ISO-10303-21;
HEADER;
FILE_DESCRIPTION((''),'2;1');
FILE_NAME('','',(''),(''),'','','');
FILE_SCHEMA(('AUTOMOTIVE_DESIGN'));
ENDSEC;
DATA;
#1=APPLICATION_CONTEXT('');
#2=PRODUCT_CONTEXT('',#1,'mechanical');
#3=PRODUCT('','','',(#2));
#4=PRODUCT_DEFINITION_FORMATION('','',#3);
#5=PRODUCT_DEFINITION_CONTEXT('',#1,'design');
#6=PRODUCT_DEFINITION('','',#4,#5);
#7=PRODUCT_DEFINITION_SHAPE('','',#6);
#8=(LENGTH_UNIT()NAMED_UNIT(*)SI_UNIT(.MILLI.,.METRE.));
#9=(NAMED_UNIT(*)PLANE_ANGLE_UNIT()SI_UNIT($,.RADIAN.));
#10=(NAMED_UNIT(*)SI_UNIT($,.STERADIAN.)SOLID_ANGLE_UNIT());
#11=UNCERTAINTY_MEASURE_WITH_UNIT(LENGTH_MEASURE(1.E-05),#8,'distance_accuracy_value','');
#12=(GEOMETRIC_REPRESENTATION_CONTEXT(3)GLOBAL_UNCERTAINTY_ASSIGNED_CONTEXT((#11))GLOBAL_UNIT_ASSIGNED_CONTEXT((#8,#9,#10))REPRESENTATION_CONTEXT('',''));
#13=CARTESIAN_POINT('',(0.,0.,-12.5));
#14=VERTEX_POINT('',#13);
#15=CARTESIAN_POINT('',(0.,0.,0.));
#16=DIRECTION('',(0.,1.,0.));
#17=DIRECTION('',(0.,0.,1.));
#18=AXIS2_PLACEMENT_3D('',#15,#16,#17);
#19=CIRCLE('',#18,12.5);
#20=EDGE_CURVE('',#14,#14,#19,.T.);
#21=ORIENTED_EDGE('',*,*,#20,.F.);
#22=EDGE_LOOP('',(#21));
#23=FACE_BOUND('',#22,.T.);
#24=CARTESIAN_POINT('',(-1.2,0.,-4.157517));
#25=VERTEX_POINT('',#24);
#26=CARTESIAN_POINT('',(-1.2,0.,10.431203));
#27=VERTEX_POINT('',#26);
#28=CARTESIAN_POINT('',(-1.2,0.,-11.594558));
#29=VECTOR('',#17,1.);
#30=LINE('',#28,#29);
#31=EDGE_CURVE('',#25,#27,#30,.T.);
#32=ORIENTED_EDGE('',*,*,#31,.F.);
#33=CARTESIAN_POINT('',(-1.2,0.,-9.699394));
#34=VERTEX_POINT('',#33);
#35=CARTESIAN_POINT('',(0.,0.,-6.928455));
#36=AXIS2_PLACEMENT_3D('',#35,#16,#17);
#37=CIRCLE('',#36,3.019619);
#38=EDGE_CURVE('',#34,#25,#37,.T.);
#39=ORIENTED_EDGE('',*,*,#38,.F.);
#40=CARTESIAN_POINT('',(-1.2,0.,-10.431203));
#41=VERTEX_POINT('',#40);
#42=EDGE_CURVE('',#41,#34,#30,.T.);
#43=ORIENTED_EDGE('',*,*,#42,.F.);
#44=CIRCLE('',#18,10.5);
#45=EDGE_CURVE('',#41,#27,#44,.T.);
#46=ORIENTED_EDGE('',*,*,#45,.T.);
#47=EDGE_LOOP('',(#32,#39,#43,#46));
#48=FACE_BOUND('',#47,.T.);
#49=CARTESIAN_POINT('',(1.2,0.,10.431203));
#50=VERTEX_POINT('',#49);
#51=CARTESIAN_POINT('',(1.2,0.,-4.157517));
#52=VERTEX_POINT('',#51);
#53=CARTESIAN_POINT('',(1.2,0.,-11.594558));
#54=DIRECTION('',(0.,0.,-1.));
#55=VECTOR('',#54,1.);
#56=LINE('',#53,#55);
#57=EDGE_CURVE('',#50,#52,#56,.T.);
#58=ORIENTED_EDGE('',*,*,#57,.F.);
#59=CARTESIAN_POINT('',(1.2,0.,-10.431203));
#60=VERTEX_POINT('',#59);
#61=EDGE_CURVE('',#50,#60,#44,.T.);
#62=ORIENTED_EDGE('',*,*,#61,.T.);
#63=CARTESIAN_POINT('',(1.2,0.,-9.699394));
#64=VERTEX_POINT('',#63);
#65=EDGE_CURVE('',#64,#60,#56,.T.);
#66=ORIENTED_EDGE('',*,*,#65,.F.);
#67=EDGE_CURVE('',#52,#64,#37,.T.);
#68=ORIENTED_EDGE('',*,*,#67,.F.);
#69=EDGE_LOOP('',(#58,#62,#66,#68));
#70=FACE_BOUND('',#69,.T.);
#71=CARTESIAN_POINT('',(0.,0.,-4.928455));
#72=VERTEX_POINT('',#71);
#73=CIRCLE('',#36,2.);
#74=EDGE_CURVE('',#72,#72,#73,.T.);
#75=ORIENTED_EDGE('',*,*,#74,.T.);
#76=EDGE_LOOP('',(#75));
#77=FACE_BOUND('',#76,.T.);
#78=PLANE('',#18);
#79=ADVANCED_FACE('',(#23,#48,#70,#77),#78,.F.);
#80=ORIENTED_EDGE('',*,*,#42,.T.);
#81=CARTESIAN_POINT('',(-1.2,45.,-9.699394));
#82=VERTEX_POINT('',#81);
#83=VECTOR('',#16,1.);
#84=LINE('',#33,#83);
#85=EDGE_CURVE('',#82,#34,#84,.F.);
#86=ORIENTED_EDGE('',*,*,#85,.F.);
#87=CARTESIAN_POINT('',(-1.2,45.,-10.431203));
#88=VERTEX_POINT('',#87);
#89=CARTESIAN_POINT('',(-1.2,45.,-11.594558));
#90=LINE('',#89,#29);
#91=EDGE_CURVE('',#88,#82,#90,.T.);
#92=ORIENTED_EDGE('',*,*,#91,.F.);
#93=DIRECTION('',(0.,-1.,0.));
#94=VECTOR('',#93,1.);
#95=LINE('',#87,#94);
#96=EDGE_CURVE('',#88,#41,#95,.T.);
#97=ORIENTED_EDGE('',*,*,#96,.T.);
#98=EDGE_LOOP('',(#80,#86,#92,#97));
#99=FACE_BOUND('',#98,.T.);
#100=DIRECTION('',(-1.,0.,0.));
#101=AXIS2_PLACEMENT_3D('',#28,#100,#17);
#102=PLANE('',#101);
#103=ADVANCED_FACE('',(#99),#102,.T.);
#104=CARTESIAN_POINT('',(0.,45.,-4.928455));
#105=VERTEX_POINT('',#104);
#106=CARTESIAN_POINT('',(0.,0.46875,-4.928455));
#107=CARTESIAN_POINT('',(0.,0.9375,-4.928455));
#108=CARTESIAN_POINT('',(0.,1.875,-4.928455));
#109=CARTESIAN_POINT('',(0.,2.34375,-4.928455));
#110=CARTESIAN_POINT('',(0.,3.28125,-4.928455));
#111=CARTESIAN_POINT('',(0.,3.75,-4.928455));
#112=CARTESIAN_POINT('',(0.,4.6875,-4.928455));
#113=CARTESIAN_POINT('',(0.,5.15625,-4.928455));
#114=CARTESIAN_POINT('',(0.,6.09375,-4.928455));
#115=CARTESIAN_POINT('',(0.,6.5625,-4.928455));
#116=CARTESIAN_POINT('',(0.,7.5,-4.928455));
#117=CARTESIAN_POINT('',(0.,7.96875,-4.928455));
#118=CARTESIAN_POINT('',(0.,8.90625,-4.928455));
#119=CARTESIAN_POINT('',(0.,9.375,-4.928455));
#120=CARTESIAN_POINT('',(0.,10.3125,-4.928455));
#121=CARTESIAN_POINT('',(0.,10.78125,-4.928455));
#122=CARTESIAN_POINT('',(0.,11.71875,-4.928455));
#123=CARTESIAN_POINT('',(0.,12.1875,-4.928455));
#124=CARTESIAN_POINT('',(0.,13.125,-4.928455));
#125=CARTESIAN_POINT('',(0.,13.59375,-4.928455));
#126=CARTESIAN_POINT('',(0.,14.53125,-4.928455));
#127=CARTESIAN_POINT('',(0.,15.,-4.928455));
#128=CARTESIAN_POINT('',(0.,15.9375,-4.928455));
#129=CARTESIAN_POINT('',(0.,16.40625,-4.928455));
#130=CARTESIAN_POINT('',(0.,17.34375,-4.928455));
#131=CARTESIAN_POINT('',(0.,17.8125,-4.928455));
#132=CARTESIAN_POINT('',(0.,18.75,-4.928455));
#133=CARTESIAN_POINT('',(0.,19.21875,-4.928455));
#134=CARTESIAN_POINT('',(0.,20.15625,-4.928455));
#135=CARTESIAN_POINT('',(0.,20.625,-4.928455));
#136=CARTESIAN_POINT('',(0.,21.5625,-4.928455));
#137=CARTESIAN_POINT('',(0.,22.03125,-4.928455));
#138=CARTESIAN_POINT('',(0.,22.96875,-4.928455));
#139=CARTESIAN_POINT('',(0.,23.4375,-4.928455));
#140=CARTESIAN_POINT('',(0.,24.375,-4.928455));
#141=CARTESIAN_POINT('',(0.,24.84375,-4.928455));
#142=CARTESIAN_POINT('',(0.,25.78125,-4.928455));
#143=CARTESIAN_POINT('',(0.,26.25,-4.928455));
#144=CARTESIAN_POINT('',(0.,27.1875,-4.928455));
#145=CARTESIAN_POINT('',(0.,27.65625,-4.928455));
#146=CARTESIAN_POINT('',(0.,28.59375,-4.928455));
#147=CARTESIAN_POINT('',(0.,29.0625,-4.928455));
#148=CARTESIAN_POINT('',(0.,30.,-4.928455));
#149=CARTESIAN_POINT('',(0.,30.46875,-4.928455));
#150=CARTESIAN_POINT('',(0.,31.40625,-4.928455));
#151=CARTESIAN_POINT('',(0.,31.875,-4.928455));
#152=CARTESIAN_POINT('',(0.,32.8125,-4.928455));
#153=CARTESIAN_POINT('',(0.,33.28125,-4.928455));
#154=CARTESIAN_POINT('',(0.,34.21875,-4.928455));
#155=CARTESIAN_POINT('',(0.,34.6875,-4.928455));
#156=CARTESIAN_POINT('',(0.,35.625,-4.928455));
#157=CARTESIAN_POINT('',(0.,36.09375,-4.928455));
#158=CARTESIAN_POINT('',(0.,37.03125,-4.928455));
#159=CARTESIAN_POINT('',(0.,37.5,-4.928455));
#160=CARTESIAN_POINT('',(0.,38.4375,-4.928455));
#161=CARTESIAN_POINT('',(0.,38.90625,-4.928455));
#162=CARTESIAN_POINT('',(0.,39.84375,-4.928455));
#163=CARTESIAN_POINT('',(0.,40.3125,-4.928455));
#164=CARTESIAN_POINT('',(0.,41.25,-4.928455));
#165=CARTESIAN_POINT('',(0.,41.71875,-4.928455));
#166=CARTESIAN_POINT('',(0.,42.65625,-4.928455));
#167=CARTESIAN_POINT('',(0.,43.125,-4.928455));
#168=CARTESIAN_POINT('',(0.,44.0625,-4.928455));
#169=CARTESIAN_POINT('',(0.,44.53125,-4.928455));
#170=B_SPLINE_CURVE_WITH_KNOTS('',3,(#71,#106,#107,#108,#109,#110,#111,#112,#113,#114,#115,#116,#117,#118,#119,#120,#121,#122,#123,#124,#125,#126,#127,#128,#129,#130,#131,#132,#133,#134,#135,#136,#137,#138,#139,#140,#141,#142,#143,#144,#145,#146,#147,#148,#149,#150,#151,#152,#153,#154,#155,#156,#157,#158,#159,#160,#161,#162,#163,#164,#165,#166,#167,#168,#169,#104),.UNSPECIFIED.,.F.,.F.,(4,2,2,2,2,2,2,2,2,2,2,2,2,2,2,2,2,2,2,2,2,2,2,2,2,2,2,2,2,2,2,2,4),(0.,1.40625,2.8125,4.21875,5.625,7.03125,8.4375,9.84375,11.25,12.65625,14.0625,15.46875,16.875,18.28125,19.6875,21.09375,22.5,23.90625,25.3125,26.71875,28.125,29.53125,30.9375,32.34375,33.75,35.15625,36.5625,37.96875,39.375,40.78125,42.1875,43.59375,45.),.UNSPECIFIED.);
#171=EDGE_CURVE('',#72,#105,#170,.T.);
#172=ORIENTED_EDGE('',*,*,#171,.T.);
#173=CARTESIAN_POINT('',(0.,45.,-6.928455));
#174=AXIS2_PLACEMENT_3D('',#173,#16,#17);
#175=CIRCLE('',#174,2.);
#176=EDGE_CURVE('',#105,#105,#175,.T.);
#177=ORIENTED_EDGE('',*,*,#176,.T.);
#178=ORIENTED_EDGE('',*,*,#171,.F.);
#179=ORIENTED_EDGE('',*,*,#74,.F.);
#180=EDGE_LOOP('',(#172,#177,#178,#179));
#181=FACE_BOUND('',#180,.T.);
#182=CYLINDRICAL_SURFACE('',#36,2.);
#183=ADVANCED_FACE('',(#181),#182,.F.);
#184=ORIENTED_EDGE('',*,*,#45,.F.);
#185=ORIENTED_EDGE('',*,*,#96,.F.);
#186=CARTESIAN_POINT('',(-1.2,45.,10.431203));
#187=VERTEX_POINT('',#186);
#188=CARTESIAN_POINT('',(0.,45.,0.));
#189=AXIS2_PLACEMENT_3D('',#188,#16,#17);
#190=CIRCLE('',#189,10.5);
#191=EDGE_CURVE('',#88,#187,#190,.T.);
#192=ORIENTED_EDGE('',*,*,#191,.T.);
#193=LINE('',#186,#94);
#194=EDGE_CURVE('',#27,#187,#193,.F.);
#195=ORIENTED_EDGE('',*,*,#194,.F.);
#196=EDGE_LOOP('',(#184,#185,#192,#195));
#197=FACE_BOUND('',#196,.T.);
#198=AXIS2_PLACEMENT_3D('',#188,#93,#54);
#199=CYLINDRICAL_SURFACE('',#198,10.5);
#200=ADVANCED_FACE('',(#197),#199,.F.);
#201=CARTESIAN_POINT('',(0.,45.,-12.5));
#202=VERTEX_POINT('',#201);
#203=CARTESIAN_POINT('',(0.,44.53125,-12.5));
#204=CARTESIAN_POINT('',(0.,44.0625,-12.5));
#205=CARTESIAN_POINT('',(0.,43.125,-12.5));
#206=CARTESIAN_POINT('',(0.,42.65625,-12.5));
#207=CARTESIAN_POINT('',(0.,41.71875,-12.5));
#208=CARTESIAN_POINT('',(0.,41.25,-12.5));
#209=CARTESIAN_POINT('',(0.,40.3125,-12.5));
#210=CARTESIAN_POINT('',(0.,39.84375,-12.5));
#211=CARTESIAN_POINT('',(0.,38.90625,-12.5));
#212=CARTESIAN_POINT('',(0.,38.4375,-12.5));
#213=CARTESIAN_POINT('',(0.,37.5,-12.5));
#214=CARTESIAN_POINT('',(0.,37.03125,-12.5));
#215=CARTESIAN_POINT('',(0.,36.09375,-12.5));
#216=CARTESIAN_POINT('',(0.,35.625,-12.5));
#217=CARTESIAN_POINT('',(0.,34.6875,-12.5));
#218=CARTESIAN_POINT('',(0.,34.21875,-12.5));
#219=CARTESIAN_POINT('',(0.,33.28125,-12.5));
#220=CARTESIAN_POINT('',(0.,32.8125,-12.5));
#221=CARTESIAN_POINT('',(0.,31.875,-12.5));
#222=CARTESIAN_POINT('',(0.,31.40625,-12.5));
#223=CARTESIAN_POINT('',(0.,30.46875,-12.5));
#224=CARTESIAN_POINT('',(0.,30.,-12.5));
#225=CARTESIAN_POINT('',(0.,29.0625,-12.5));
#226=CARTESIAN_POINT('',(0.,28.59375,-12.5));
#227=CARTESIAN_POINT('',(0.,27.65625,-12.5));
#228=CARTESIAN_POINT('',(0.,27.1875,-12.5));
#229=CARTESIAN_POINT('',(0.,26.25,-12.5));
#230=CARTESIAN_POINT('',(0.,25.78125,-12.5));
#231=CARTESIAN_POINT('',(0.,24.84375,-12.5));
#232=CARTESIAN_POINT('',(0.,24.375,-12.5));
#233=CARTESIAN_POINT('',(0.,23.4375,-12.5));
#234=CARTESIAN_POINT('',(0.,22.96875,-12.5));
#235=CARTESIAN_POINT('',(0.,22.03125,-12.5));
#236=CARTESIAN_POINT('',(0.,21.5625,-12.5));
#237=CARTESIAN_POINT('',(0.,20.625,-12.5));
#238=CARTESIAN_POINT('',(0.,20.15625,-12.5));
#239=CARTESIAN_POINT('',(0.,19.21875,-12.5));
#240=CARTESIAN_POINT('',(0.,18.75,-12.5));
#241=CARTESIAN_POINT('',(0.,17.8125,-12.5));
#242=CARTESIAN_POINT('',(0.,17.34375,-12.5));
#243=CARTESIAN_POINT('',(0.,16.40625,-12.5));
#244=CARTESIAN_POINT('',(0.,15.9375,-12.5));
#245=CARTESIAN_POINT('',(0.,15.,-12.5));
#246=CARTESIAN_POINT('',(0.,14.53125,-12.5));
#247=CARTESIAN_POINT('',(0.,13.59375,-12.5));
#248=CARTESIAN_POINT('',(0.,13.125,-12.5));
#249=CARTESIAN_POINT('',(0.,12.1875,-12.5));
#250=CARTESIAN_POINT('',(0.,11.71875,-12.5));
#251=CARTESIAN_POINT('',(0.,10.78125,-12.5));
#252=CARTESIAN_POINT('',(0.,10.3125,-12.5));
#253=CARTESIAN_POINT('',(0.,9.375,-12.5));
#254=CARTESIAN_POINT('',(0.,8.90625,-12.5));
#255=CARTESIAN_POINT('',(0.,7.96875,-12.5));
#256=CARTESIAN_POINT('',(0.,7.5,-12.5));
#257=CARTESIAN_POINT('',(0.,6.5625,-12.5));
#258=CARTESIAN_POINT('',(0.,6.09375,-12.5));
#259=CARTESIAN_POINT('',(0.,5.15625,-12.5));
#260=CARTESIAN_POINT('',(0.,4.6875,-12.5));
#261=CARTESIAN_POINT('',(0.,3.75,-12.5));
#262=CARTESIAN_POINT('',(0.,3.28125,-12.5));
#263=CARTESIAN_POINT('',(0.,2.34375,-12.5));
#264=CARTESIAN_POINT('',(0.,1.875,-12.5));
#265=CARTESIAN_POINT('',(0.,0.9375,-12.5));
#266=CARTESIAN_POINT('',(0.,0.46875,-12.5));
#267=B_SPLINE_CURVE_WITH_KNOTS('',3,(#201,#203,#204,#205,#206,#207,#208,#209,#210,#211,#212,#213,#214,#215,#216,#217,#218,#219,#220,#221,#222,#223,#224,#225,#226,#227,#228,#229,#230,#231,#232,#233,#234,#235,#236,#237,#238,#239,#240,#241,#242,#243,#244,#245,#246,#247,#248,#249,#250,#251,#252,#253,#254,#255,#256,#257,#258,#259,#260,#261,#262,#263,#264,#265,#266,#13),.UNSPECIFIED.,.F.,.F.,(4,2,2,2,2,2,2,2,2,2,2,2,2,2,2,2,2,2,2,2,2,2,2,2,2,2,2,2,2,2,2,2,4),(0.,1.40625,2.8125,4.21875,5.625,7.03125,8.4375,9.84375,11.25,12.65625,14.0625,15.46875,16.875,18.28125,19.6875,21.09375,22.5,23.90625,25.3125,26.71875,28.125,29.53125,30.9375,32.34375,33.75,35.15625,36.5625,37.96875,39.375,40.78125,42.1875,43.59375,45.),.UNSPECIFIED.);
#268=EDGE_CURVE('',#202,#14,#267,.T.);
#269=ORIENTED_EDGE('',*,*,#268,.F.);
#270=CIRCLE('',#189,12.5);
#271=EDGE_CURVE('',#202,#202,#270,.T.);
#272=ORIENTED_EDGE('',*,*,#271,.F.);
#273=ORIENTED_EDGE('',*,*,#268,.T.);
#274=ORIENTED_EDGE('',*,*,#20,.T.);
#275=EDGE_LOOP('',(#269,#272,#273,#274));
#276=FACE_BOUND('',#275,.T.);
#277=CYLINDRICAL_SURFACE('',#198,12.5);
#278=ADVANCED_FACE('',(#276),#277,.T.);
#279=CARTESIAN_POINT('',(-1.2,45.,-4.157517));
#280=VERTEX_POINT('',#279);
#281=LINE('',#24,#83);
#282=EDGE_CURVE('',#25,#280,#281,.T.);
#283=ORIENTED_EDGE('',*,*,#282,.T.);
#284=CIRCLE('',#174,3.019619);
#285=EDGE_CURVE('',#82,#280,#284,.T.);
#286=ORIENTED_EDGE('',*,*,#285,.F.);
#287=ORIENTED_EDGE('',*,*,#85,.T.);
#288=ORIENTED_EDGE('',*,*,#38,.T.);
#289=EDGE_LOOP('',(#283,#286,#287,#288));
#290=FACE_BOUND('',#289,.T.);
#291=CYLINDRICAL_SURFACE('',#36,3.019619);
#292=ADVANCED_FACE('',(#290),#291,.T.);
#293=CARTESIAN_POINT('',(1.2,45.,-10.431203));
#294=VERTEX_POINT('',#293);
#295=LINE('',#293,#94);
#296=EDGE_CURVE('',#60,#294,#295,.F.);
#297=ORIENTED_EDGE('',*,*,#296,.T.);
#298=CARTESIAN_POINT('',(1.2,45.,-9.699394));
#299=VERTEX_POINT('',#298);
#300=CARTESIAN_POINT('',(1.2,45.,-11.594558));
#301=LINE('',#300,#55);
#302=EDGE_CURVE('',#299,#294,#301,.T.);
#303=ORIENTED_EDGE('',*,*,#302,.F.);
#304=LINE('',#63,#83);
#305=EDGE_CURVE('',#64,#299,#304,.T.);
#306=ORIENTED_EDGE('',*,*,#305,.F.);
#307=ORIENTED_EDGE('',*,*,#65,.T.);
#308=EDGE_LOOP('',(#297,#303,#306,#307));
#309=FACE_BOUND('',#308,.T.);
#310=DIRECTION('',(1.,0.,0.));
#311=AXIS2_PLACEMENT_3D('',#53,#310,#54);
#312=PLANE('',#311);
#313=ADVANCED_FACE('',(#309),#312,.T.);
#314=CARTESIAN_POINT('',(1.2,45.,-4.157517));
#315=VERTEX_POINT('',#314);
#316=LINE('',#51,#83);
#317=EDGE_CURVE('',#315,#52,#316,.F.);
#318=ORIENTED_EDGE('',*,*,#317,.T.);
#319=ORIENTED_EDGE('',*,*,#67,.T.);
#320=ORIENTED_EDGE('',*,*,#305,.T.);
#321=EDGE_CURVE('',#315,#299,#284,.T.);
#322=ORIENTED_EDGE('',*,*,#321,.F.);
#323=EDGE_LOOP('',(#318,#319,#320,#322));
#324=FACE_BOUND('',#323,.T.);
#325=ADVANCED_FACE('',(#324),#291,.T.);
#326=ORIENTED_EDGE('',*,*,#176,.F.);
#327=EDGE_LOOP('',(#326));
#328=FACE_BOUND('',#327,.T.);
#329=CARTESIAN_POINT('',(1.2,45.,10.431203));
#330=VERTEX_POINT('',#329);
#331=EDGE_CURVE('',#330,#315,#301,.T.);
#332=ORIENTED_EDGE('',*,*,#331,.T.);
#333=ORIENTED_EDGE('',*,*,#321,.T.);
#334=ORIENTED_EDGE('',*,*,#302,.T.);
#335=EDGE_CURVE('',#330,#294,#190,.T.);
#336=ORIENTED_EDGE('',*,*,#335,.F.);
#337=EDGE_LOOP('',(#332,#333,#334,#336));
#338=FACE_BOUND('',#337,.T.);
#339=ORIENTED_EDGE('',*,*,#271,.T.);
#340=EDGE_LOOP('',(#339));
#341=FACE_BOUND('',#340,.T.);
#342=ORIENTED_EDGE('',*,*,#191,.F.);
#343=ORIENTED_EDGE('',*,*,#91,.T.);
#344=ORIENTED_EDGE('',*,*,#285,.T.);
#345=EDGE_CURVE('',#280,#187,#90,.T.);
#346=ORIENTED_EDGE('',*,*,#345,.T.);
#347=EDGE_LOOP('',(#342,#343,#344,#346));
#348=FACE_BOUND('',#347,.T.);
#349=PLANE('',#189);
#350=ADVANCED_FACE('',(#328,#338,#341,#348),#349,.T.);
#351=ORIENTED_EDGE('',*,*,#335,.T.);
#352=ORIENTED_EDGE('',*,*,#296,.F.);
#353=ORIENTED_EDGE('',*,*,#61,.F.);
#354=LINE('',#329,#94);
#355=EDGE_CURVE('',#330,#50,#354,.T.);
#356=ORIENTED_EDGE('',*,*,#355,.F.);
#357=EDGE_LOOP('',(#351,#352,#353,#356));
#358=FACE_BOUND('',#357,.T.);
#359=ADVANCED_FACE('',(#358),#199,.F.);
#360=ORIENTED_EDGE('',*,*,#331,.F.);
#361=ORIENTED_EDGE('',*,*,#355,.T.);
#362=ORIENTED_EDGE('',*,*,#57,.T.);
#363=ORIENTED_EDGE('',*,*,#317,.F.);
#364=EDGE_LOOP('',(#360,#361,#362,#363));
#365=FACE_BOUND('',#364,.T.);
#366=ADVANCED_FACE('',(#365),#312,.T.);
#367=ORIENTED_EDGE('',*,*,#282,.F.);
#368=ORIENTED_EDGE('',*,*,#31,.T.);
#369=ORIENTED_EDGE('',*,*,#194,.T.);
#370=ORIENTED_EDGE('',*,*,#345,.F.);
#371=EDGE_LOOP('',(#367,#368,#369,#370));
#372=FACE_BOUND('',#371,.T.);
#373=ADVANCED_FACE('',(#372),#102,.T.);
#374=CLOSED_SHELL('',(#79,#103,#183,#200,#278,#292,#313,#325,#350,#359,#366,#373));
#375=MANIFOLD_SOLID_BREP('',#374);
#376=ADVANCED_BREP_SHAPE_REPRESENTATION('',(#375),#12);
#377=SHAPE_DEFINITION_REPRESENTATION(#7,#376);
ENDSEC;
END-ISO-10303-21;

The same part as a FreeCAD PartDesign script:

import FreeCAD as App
import Part
import Sketcher

doc = App.newDocument("Part")
params = doc.addObject("Spreadsheet::Sheet", "Params")
for row, (alias, value) in enumerate([
    ("sketch1_diameter", "25 mm"),
    ("sketch1_diameter2", "21 mm"),
    ("pad1_length", "45 mm"),
    ("sketch2_width", "2.4 mm"),
    ("pad2_length", "45 mm"),
    ("sketch4_diameter", "4 mm"),
], start=1):
    params.set(f"A{row}", alias)
    params.set(f"B{row}", "=" + value)
    params.setAlias(f"B{row}", alias)

body = doc.addObject("PartDesign::Body", "Body")

sketch1 = doc.addObject("Sketcher::SketchObject", "Sketch")
body.addObject(sketch1)
sketch1.AttachmentSupport = (doc.XZ_Plane, [""])
sketch1.MapMode = "FlatFace"
sketch1.addGeometry(Part.Circle(App.Vector(0, 0, 0), App.Vector(0, 0, 1), 12.5), False)
sketch1.addGeometry(Part.Circle(App.Vector(0, 0, 0), App.Vector(0, 0, 1), 10.5), False)
sketch1.addConstraint(Sketcher.Constraint("Coincident", 0, 3, -1, 1))
sketch1.addConstraint(Sketcher.Constraint("Coincident", 1, 3, -1, 1))
sketch1.addConstraint(Sketcher.Constraint("Diameter", 0, 25.0))
sketch1.addConstraint(Sketcher.Constraint("Diameter", 1, 21.0))
sketch1.setExpression("Constraints[2]", "Params.sketch1_diameter")
sketch1.setExpression("Constraints[3]", "Params.sketch1_diameter2")
pad1 = doc.addObject("PartDesign::Pad", "Pad")
body.addObject(pad1)
pad1.Profile = sketch1
pad1.setExpression("Length", "Params.pad1_length")
pad1.Reversed = True

sketch2 = doc.addObject("Sketcher::SketchObject", "Sketch001")
body.addObject(sketch2)
sketch2.AttachmentSupport = (doc.XZ_Plane, [""])
sketch2.MapMode = "FlatFace"
sketch2.AttachmentOffset = App.Placement(App.Vector(0, 0, -45), App.Rotation())
sketch2.addGeometry(Part.LineSegment(App.Vector(-1.2, -11.594558, 0), App.Vector(-1.2, 11.406029, 0)), False)
sketch2.addGeometry(Part.LineSegment(App.Vector(-1.2, 11.406029, 0), App.Vector(1.2, 11.406029, 0)), False)
sketch2.addGeometry(Part.LineSegment(App.Vector(1.2, 11.406029, 0), App.Vector(1.2, -11.594558, 0)), False)
sketch2.addGeometry(Part.LineSegment(App.Vector(1.2, -11.594558, 0), App.Vector(-1.2, -11.594558, 0)), False)
sketch2.addConstraint(Sketcher.Constraint("Coincident", 0, 2, 1, 1))
sketch2.addConstraint(Sketcher.Constraint("Coincident", 1, 2, 2, 1))
sketch2.addConstraint(Sketcher.Constraint("Coincident", 2, 2, 3, 1))
sketch2.addConstraint(Sketcher.Constraint("Coincident", 3, 2, 0, 1))
sketch2.addConstraint(Sketcher.Constraint("Vertical", 0))
sketch2.addConstraint(Sketcher.Constraint("Horizontal", 1))
sketch2.addConstraint(Sketcher.Constraint("Vertical", 2))
sketch2.addConstraint(Sketcher.Constraint("Horizontal", 3))
sketch2.addConstraint(Sketcher.Constraint("DistanceX", 1, 1, 1, 2, 2.4))
sketch2.addConstraint(Sketcher.Constraint("DistanceX", 0, 2, -1, 1, 1.2))
sketch2.addConstraint(Sketcher.Constraint("DistanceY", 0, 1, 0, 2, 23.000587))
sketch2.addConstraint(Sketcher.Constraint("DistanceY", -1, 1, 0, 2, 11.406029))
sketch2.setExpression("Constraints[8]", "Params.sketch2_width")
pad2 = doc.addObject("PartDesign::Pad", "Pad001")
body.addObject(pad2)
pad2.Profile = sketch2
pad2.setExpression("Length", "Params.pad2_length")

sketch3 = doc.addObject("Sketcher::SketchObject", "Sketch002")
body.addObject(sketch3)
sketch3.AttachmentSupport = (doc.XZ_Plane, [""])
sketch3.MapMode = "FlatFace"
sketch3.AttachmentOffset = App.Placement(App.Vector(0, 0, -45), App.Rotation())
sketch3.addGeometry(Part.Circle(App.Vector(0, -6.928455, 0), App.Vector(0, 0, 1), 3.019619), False)
sketch3.addConstraint(Sketcher.Constraint("PointOnObject", 0, 3, -2))
sketch3.addConstraint(Sketcher.Constraint("Diameter", 0, 6.039238))
sketch3.addConstraint(Sketcher.Constraint("DistanceY", 0, 3, -1, 1, 6.928455))
pad3 = doc.addObject("PartDesign::Pad", "Pad002")
body.addObject(pad3)
pad3.Profile = sketch3
pad3.Type = "UpToLast"

sketch4 = doc.addObject("Sketcher::SketchObject", "Sketch003")
body.addObject(sketch4)
sketch4.AttachmentSupport = (doc.XZ_Plane, [""])
sketch4.MapMode = "FlatFace"
sketch4.AttachmentOffset = App.Placement(App.Vector(0, 0, -45), App.Rotation())
sketch4.addGeometry(Part.Circle(App.Vector(0, -6.928455, 0), App.Vector(0, 0, 1), 2), False)
sketch4.addConstraint(Sketcher.Constraint("PointOnObject", 0, 3, -2))
sketch4.addConstraint(Sketcher.Constraint("Diameter", 0, 4.0))
sketch4.addConstraint(Sketcher.Constraint("DistanceY", 0, 3, -1, 1, 6.928455))
sketch4.setExpression("Constraints[1]", "Params.sketch4_diameter")
pocket1 = doc.addObject("PartDesign::Pocket", "Pocket")
body.addObject(pocket1)
pocket1.Profile = sketch4
pocket1.Type = "ThroughAll"
pocket1.Reversed = True

doc.recompute()
